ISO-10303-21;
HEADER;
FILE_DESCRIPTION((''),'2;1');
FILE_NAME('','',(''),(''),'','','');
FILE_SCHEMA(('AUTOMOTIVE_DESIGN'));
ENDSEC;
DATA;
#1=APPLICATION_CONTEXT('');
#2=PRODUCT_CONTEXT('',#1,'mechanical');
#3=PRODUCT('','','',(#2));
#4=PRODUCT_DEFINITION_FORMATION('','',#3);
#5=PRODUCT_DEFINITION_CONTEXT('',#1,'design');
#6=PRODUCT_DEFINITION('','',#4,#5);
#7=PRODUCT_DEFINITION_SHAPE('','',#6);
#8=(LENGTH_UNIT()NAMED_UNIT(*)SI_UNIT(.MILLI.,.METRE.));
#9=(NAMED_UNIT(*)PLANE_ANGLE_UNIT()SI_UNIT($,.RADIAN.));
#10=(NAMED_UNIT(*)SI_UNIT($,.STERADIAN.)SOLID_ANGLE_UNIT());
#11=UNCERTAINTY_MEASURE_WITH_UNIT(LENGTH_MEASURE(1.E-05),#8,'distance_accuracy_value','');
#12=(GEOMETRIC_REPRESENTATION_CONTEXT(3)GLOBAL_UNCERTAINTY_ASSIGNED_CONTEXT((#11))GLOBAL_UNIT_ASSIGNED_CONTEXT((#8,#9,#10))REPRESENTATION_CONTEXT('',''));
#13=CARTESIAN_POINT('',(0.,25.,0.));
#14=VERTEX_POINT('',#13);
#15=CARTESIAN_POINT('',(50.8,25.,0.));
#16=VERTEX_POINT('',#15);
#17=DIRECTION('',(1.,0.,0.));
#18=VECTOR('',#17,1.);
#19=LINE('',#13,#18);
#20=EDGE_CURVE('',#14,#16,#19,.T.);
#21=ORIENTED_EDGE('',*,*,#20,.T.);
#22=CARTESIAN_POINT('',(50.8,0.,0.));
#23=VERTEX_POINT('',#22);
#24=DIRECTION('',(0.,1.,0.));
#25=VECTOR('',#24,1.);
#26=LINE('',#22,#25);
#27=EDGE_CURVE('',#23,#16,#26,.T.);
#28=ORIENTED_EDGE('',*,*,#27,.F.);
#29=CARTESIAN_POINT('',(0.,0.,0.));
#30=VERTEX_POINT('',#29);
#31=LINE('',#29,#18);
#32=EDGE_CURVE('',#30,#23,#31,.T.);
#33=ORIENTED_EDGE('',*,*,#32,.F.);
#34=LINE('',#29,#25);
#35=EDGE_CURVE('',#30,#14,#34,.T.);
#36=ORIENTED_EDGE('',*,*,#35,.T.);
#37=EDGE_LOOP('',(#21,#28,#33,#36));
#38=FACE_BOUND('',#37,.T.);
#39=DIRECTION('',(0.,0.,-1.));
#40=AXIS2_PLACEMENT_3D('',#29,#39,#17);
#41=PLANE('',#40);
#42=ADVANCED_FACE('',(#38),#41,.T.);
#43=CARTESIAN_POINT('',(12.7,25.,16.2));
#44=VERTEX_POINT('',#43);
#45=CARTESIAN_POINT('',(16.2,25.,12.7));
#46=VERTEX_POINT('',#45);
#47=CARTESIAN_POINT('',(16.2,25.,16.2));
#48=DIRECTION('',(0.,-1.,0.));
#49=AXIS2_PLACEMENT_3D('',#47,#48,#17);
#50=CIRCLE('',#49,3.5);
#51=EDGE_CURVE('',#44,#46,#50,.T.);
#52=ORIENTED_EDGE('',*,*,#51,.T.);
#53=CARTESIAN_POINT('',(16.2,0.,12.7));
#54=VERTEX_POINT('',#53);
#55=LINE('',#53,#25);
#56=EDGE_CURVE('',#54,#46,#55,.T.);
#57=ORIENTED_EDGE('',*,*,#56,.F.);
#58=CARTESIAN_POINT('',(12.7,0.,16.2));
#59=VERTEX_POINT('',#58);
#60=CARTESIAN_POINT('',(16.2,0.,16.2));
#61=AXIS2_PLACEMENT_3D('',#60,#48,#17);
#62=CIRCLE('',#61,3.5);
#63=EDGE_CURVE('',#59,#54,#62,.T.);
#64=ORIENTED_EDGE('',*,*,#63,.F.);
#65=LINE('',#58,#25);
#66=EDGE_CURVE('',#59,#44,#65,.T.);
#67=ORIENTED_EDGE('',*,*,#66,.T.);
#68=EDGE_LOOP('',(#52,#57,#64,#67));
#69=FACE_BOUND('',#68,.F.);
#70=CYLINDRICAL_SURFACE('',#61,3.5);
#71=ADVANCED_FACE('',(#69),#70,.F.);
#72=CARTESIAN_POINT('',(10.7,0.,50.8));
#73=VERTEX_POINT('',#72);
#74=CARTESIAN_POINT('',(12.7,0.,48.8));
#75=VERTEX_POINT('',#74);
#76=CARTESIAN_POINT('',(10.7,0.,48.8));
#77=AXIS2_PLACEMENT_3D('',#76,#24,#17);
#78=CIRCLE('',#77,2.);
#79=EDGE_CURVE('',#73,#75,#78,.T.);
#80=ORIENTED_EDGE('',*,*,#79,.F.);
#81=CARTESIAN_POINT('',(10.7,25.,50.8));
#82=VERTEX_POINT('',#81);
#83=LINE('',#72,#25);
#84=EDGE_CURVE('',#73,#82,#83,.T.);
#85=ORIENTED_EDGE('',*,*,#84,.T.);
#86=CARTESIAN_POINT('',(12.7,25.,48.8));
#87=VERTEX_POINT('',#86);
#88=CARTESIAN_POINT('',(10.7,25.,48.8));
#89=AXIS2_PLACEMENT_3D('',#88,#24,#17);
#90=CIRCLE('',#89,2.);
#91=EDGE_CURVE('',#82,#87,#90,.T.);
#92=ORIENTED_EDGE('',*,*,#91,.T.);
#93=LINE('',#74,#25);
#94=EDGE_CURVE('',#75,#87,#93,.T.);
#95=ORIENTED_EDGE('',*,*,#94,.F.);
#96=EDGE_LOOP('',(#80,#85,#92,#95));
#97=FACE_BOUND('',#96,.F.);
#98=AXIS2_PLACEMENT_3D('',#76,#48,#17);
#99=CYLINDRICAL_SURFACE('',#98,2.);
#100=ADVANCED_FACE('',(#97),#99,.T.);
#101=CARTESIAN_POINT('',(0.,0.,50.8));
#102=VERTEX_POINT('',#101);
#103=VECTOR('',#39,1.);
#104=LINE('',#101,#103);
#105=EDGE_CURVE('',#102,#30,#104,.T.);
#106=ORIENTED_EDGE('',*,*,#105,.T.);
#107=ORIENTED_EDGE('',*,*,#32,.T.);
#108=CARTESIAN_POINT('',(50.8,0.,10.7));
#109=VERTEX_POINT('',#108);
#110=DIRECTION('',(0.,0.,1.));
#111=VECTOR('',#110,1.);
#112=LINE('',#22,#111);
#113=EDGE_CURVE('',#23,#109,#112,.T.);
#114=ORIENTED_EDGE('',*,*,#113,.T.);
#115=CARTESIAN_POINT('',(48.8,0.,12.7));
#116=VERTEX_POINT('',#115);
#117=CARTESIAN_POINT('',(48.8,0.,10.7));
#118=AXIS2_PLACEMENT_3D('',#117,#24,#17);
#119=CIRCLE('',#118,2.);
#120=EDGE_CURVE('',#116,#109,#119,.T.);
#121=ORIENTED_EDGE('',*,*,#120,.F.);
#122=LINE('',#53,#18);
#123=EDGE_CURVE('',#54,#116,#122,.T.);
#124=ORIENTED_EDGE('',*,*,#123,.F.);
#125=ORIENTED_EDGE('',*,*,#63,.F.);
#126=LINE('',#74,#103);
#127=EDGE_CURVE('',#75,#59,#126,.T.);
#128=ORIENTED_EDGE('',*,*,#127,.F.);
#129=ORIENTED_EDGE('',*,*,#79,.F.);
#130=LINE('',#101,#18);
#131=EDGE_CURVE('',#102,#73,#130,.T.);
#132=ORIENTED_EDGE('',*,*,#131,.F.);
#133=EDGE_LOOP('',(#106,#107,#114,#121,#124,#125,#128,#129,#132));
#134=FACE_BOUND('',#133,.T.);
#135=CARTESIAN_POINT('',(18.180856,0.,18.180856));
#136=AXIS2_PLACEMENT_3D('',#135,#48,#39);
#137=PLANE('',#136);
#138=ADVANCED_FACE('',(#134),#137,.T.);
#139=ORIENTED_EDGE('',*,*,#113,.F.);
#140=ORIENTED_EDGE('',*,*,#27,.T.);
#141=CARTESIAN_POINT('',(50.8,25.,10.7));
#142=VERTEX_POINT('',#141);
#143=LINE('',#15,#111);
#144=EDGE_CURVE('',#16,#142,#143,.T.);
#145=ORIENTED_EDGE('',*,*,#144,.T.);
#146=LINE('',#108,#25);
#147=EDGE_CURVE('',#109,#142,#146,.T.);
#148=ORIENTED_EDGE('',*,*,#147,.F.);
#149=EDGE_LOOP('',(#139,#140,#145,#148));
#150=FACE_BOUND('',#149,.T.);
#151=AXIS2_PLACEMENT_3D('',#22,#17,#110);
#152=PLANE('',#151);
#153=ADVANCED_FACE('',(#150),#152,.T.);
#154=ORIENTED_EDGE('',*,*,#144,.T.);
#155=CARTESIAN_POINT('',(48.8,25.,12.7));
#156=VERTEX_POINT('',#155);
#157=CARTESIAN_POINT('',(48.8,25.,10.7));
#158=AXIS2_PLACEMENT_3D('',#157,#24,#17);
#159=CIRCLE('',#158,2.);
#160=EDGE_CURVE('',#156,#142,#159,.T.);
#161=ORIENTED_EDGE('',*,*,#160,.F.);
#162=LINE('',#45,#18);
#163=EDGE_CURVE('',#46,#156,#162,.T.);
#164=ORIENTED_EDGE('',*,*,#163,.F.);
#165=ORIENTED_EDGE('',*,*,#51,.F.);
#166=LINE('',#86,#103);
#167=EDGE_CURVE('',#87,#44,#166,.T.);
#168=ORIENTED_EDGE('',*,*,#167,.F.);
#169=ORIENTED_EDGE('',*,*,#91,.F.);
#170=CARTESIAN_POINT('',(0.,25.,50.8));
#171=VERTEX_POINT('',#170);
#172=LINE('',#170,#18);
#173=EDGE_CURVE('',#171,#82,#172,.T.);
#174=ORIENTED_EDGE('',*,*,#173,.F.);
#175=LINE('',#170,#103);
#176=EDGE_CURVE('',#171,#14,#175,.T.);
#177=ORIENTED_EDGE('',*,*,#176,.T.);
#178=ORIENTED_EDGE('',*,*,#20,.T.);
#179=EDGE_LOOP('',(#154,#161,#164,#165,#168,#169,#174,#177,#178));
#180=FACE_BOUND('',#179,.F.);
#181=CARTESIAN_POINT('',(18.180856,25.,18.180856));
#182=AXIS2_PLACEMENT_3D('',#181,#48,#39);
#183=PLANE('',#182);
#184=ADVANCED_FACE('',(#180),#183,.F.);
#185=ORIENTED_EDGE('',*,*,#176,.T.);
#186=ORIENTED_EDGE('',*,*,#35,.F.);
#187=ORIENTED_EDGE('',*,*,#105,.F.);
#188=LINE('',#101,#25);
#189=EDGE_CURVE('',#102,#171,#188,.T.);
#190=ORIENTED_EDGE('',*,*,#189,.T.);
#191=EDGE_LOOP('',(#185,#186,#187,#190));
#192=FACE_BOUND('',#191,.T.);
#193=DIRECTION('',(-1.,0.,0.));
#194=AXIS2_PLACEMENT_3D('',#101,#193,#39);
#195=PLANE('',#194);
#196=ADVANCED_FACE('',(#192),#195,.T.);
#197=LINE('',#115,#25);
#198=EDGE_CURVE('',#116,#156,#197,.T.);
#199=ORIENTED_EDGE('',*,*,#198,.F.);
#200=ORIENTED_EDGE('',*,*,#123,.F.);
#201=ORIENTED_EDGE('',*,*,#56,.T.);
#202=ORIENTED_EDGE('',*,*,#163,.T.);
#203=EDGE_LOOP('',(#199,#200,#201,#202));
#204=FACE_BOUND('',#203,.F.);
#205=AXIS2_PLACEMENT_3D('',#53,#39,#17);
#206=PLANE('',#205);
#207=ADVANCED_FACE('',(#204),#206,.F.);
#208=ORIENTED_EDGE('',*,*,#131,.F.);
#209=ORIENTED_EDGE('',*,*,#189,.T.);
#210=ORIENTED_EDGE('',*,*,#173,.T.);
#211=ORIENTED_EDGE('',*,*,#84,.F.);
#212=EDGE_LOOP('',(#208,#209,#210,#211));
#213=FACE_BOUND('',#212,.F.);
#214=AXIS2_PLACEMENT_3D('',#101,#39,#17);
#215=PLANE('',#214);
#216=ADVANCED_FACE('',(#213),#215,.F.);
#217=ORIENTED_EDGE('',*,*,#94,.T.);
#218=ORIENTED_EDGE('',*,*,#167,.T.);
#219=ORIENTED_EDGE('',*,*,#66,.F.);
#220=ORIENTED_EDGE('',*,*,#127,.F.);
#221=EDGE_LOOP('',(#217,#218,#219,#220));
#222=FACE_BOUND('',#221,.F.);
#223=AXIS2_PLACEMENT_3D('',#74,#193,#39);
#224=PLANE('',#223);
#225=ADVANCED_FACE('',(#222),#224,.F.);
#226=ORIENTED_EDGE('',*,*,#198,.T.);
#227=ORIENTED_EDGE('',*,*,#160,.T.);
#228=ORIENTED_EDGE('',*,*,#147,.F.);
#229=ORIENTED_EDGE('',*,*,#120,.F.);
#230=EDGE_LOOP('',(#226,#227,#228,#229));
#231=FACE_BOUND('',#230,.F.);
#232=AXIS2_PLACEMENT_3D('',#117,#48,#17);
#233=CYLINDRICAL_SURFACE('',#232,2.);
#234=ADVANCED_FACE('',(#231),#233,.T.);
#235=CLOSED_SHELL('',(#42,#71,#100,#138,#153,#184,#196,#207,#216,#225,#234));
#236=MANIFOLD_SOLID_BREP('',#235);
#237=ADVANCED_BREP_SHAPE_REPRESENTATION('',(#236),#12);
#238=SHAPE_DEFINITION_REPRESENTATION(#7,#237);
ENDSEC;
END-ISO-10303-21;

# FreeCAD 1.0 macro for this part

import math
import FreeCAD as App
import Part
import Sketcher
Q = App.Units.Quantity

doc = App.newDocument("Part")
body = doc.addObject("PartDesign::Body", "Body")

# Sketch on XZ plane
sketch1 = body.newObject("Sketcher::SketchObject", "Sketch")
sketch1.AttachmentSupport = (doc.getObject("XZ_Plane"), [""])
sketch1.MapMode = "FlatFace"
sketch1.addGeometry(Part.LineSegment(App.Vector(10.7, 50.8, 0), App.Vector(0, 50.8, 0)), False)
sketch1.addGeometry(Part.LineSegment(App.Vector(0, 50.8, 0), App.Vector(0, 0, 0)), False)
sketch1.addGeometry(Part.LineSegment(App.Vector(0, 0, 0), App.Vector(50.8, 0, 0)), False)
sketch1.addGeometry(Part.LineSegment(App.Vector(50.8, 0, 0), App.Vector(50.8, 10.7, 0)), False)
sketch1.addGeometry(Part.ArcOfCircle(Part.Circle(App.Vector(48.8, 10.7, 0), App.Vector(0, 0, 1), 2), math.radians(0), math.radians(90)), False)
sketch1.addGeometry(Part.LineSegment(App.Vector(48.8, 12.7, 0), App.Vector(16.2, 12.7, 0)), False)
sketch1.addGeometry(Part.ArcOfCircle(Part.Circle(App.Vector(16.2, 16.2, 0), App.Vector(0, 0, 1), 3.5), math.radians(180), math.radians(270)), False)
sketch1.addGeometry(Part.LineSegment(App.Vector(12.7, 16.2, 0), App.Vector(12.7, 48.8, 0)), False)
sketch1.addGeometry(Part.ArcOfCircle(Part.Circle(App.Vector(10.7, 48.8, 0), App.Vector(0, 0, 1), 2), math.radians(0), math.radians(90)), False)
sketch1.addConstraint(Sketcher.Constraint("Coincident", 0, 2, 1, 1))
sketch1.addConstraint(Sketcher.Constraint("Coincident", 1, 2, 2, 1))
sketch1.addConstraint(Sketcher.Constraint("Coincident", 2, 2, 3, 1))
sketch1.addConstraint(Sketcher.Constraint("Tangent", 3, 2, 4, 1))
sketch1.addConstraint(Sketcher.Constraint("Tangent", 4, 2, 5, 1))
sketch1.addConstraint(Sketcher.Constraint("Tangent", 5, 2, 6, 2))
sketch1.addConstraint(Sketcher.Constraint("Tangent", 6, 1, 7, 1))
sketch1.addConstraint(Sketcher.Constraint("Tangent", 7, 2, 8, 1))
sketch1.addConstraint(Sketcher.Constraint("Tangent", 8, 2, 0, 1))
sketch1.addConstraint(Sketcher.Constraint("Horizontal", 0))
sketch1.addConstraint(Sketcher.Constraint("Vertical", 1))
sketch1.addConstraint(Sketcher.Constraint("Horizontal", 2))
sketch1.addConstraint(Sketcher.Constraint("Vertical", 3))
sketch1.addConstraint(Sketcher.Constraint("Horizontal", 5))
sketch1.addConstraint(Sketcher.Constraint("Vertical", 7))
sketch1.addConstraint(Sketcher.Constraint("Coincident", 1, 2, -1, 1))
sketch1.addConstraint(Sketcher.Constraint("Equal", 4, 8))
sketch1.addConstraint(Sketcher.Constraint("Equal", 2, 1))
sketch1.addConstraint(Sketcher.Constraint("Equal", 0, 3))
sketch1.addConstraint(Sketcher.Constraint("Radius", 4, Q("2 mm")))
sketch1.addConstraint(Sketcher.Constraint("Radius", 6, Q("3.5 mm")))
sketch1.addConstraint(Sketcher.Constraint("DistanceX", 0, 2, 0, 1, Q("10.7 mm")))
sketch1.addConstraint(Sketcher.Constraint("DistanceX", 2, 1, 2, 2, Q("50.8 mm")))
pad1 = body.newObject("PartDesign::Pad", "Pad")
pad1.Profile = sketch1
pad1.Length = 25
pad1.Reversed = True

doc.recompute()
